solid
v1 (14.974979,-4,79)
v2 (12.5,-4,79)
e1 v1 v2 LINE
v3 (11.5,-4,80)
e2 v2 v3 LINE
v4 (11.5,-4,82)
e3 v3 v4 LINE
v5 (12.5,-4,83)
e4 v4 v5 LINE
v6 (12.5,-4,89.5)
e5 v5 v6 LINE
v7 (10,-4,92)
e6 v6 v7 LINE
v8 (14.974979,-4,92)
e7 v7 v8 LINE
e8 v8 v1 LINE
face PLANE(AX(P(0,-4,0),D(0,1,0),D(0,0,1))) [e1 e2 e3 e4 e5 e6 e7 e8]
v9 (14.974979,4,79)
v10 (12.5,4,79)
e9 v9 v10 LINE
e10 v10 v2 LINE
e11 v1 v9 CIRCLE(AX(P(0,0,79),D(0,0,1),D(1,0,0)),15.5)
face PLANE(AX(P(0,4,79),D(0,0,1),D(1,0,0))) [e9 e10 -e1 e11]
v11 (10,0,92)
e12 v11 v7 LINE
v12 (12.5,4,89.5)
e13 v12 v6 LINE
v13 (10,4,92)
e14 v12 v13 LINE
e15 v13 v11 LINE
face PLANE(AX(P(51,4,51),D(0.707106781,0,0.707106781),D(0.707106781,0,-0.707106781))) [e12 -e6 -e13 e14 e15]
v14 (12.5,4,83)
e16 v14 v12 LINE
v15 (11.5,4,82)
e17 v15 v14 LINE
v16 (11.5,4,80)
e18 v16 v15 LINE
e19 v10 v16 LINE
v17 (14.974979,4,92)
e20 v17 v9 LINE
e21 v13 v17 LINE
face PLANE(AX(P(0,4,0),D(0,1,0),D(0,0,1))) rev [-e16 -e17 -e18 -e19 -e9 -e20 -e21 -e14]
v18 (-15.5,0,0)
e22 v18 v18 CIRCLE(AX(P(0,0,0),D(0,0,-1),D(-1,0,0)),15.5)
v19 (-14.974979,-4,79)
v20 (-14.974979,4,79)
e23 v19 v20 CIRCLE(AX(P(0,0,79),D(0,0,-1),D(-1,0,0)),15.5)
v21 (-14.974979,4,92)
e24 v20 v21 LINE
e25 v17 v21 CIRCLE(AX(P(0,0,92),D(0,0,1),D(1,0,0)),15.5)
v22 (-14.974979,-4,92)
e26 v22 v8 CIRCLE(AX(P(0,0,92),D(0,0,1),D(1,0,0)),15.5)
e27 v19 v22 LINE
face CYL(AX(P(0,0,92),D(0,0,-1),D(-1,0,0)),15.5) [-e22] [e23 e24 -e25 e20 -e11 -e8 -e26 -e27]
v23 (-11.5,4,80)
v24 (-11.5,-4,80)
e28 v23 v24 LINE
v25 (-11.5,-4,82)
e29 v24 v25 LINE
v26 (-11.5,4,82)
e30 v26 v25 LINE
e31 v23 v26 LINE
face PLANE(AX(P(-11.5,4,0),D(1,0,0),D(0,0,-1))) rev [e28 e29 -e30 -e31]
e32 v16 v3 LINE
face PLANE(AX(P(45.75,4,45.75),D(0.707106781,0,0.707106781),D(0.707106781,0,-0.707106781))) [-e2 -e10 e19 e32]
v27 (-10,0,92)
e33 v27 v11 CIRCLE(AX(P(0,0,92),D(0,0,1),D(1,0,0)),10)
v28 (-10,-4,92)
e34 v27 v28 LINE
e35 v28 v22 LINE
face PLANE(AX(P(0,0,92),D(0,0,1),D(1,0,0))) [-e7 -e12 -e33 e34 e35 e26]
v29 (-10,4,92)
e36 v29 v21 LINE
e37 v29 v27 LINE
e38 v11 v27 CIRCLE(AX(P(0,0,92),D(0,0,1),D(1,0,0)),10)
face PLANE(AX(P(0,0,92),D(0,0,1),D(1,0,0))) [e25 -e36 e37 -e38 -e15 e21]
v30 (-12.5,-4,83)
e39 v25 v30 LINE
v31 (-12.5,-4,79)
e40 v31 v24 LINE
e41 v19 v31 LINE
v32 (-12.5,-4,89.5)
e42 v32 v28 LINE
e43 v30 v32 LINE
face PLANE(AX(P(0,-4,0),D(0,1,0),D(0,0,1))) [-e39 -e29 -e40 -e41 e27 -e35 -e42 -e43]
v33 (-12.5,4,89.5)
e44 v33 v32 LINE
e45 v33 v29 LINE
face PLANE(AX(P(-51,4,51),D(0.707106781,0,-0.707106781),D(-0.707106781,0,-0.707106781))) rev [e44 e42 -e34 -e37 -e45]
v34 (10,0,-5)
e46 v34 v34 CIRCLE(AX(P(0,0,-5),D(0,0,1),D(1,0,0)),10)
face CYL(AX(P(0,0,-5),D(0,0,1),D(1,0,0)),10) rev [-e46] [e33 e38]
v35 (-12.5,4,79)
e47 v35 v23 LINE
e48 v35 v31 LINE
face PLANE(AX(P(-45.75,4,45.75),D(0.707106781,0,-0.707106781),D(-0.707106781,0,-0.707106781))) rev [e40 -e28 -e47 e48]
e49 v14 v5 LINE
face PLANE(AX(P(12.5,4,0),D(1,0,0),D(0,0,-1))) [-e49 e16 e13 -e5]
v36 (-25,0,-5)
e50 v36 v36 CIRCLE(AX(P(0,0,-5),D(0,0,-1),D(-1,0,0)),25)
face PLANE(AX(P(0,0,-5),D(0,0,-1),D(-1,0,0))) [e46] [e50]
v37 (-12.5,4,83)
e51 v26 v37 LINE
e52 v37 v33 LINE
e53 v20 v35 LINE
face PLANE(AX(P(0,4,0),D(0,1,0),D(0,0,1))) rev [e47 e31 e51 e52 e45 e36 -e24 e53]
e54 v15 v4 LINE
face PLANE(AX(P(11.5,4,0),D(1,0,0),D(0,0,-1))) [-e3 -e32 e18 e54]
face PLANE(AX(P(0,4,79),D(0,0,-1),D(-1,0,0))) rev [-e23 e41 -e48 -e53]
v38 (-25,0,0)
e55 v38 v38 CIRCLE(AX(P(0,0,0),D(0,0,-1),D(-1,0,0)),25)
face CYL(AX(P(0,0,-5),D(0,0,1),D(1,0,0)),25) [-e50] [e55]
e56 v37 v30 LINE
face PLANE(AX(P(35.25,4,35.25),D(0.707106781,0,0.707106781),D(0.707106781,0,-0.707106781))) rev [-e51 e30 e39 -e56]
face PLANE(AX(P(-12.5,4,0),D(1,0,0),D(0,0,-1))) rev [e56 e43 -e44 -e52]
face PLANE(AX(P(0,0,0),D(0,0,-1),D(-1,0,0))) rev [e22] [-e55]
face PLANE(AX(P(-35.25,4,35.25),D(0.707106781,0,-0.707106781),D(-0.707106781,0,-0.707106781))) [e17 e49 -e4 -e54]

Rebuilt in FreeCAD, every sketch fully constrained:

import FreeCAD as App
import Part
import Sketcher
from FreeCAD import Vector
Q = App.Units.Quantity

doc = App.newDocument("Part")
params = doc.addObject("Spreadsheet::Sheet", "Params")
for row, (alias, value) in enumerate([
    ("sketch1_diameter", "31 mm"),
    ("pad1_length", "92 mm"),
    ("sketch2_diameter", "50 mm"),
    ("pad2_length", "5 mm"),
    ("sketch3_diameter", "20 mm"),
    ("sketch4_width", "3 mm"),
    ("sketch4_height", "13 mm"),
    ("sketch4_height2", "2 mm"),
    ("sketch4_width2", "5.5 mm"),
    ("sketch4_height3", "6.5 mm"),
    ("pocket2_length", "8 mm"),
], start=1):
    params.set(f"A{row}", alias)
    params.set(f"B{row}", "=" + value)
    params.setAlias(f"B{row}", alias)

body = doc.addObject("PartDesign::Body", "Body")

sketch1 = doc.addObject("Sketcher::SketchObject", "Sketch")
body.addObject(sketch1)
sketch1.AttachmentSupport = (doc.XY_Plane, [""])
sketch1.MapMode = "FlatFace"
sketch1.addGeometry(Part.Circle(Vector(0, 0, 0), Vector(0, 0, 1), 16), False)
sketch1.addConstraint([
    Sketcher.Constraint("Coincident", 0, 3, -1, 1),
    Sketcher.Constraint("Diameter", 0, Q("31 mm")),
])
sketch1.setExpression("Constraints[1]", "Params.sketch1_diameter")
pad1 = doc.addObject("PartDesign::Pad", "Pad")
body.addObject(pad1)
pad1.Profile = sketch1
pad1.setExpression("Length", "Params.pad1_length")

sketch2 = doc.addObject("Sketcher::SketchObject", "Sketch001")
body.addObject(sketch2)
sketch2.AttachmentSupport = (doc.XY_Plane, [""])
sketch2.MapMode = "FlatFace"
sketch2.addGeometry(Part.Circle(Vector(0, 0, 0), Vector(0, 0, 1), 25), False)
sketch2.addConstraint([
    Sketcher.Constraint("Coincident", 0, 3, -1, 1),
    Sketcher.Constraint("Diameter", 0, Q("50 mm")),
])
sketch2.setExpression("Constraints[1]", "Params.sketch2_diameter")
pad2 = doc.addObject("PartDesign::Pad", "Pad001")
body.addObject(pad2)
pad2.Profile = sketch2
pad2.setExpression("Length", "Params.pad2_length")
pad2.Reversed = True

sketch3 = doc.addObject("Sketcher::SketchObject", "Sketch002")
body.addObject(sketch3)
sketch3.AttachmentSupport = (doc.XY_Plane, [""])
sketch3.MapMode = "FlatFace"
sketch3.AttachmentOffset = App.Placement(Vector(0, 0, 92), App.Rotation())
sketch3.addGeometry(Part.Circle(Vector(0, 0, 0), Vector(0, 0, 1), 10), False)
sketch3.addConstraint([
    Sketcher.Constraint("Coincident", 0, 3, -1, 1),
    Sketcher.Constraint("Diameter", 0, Q("20 mm")),
])
sketch3.setExpression("Constraints[1]", "Params.sketch3_diameter")
pocket1 = doc.addObject("PartDesign::Pocket", "Pocket")
body.addObject(pocket1)
pocket1.Profile = sketch3
pocket1.Type = "ThroughAll"

sketch4 = doc.addObject("Sketcher::SketchObject", "Sketch003")
body.addObject(sketch4)
sketch4.AttachmentSupport = (doc.XZ_Plane, [""])
sketch4.MapMode = "FlatFace"
sketch4.addGeometry([
    Part.LineSegment(Vector(12.5, 89.5, 0), Vector(10, 92, 0)),
    Part.LineSegment(Vector(10, 92, 0), Vector(15.5, 92, 0)),
    Part.LineSegment(Vector(15.5, 92, 0), Vector(15.5, 79, 0)),
    Part.LineSegment(Vector(15.5, 79, 0), Vector(12.5, 79, 0)),
    Part.LineSegment(Vector(12.5, 79, 0), Vector(11.5, 80, 0)),
    Part.LineSegment(Vector(11.5, 80, 0), Vector(11.5, 82, 0)),
    Part.LineSegment(Vector(11.5, 82, 0), Vector(12.5, 83, 0)),
    Part.LineSegment(Vector(12.5, 83, 0), Vector(12.5, 89.5, 0)),
], False)
sketch4.addConstraint([
    Sketcher.Constraint("Coincident", 0, 2, 1, 1),
    Sketcher.Constraint("Coincident", 1, 2, 2, 1),
    Sketcher.Constraint("Coincident", 2, 2, 3, 1),
    Sketcher.Constraint("Coincident", 3, 2, 4, 1),
    Sketcher.Constraint("Coincident", 4, 2, 5, 1),
    Sketcher.Constraint("Coincident", 5, 2, 6, 1),
    Sketcher.Constraint("Coincident", 6, 2, 7, 1),
    Sketcher.Constraint("Coincident", 7, 2, 0, 1),
    Sketcher.Constraint("Horizontal", 1),
    Sketcher.Constraint("Vertical", 2),
    Sketcher.Constraint("Horizontal", 3),
    Sketcher.Constraint("Vertical", 5),
    Sketcher.Constraint("Vertical", 7),
    Sketcher.Constraint("Parallel", 0, 4),
    Sketcher.Constraint("Perpendicular", 4, 6),
    Sketcher.Constraint("Vertical", 3, 2, 6, 2),
    Sketcher.Constraint("Equal", 4, 6),
    Sketcher.Constraint("DistanceX", 3, 2, 3, 1, Q("3 mm")),
    Sketcher.Constraint("DistanceY", 2, 2, 2, 1, Q("13 mm")),
    Sketcher.Constraint("DistanceY", 5, 1, 5, 2, Q("2 mm")),
    Sketcher.Constraint("DistanceX", 1, 1, 1, 2, Q("5.5 mm")),
    Sketcher.Constraint("DistanceY", 7, 1, 7, 2, Q("6.5 mm")),
    Sketcher.Constraint("DistanceX", -1, 1, 0, 2, Q("10 mm")),
    Sketcher.Constraint("DistanceY", -1, 1, 0, 2, Q("92 mm")),
])
sketch4.setExpression("Constraints[17]", "Params.sketch4_width")
sketch4.setExpression("Constraints[18]", "Params.sketch4_height")
sketch4.setExpression("Constraints[19]", "Params.sketch4_height2")
sketch4.setExpression("Constraints[20]", "Params.sketch4_width2")
sketch4.setExpression("Constraints[21]", "Params.sketch4_height3")
pocket2 = doc.addObject("PartDesign::Pocket", "Pocket001")
body.addObject(pocket2)
pocket2.Profile = sketch4
pocket2.setExpression("Length", "Params.pocket2_length")
pocket2.Midplane = True
doc.recompute()

mirrored = doc.addObject("PartDesign::Mirrored", "Mirrored")
body.addObject(mirrored)
mirrored.Originals = [pocket2]
mirrored.MirrorPlane = (doc.YZ_Plane, [""])
body.Tip = mirrored

doc.recompute()
